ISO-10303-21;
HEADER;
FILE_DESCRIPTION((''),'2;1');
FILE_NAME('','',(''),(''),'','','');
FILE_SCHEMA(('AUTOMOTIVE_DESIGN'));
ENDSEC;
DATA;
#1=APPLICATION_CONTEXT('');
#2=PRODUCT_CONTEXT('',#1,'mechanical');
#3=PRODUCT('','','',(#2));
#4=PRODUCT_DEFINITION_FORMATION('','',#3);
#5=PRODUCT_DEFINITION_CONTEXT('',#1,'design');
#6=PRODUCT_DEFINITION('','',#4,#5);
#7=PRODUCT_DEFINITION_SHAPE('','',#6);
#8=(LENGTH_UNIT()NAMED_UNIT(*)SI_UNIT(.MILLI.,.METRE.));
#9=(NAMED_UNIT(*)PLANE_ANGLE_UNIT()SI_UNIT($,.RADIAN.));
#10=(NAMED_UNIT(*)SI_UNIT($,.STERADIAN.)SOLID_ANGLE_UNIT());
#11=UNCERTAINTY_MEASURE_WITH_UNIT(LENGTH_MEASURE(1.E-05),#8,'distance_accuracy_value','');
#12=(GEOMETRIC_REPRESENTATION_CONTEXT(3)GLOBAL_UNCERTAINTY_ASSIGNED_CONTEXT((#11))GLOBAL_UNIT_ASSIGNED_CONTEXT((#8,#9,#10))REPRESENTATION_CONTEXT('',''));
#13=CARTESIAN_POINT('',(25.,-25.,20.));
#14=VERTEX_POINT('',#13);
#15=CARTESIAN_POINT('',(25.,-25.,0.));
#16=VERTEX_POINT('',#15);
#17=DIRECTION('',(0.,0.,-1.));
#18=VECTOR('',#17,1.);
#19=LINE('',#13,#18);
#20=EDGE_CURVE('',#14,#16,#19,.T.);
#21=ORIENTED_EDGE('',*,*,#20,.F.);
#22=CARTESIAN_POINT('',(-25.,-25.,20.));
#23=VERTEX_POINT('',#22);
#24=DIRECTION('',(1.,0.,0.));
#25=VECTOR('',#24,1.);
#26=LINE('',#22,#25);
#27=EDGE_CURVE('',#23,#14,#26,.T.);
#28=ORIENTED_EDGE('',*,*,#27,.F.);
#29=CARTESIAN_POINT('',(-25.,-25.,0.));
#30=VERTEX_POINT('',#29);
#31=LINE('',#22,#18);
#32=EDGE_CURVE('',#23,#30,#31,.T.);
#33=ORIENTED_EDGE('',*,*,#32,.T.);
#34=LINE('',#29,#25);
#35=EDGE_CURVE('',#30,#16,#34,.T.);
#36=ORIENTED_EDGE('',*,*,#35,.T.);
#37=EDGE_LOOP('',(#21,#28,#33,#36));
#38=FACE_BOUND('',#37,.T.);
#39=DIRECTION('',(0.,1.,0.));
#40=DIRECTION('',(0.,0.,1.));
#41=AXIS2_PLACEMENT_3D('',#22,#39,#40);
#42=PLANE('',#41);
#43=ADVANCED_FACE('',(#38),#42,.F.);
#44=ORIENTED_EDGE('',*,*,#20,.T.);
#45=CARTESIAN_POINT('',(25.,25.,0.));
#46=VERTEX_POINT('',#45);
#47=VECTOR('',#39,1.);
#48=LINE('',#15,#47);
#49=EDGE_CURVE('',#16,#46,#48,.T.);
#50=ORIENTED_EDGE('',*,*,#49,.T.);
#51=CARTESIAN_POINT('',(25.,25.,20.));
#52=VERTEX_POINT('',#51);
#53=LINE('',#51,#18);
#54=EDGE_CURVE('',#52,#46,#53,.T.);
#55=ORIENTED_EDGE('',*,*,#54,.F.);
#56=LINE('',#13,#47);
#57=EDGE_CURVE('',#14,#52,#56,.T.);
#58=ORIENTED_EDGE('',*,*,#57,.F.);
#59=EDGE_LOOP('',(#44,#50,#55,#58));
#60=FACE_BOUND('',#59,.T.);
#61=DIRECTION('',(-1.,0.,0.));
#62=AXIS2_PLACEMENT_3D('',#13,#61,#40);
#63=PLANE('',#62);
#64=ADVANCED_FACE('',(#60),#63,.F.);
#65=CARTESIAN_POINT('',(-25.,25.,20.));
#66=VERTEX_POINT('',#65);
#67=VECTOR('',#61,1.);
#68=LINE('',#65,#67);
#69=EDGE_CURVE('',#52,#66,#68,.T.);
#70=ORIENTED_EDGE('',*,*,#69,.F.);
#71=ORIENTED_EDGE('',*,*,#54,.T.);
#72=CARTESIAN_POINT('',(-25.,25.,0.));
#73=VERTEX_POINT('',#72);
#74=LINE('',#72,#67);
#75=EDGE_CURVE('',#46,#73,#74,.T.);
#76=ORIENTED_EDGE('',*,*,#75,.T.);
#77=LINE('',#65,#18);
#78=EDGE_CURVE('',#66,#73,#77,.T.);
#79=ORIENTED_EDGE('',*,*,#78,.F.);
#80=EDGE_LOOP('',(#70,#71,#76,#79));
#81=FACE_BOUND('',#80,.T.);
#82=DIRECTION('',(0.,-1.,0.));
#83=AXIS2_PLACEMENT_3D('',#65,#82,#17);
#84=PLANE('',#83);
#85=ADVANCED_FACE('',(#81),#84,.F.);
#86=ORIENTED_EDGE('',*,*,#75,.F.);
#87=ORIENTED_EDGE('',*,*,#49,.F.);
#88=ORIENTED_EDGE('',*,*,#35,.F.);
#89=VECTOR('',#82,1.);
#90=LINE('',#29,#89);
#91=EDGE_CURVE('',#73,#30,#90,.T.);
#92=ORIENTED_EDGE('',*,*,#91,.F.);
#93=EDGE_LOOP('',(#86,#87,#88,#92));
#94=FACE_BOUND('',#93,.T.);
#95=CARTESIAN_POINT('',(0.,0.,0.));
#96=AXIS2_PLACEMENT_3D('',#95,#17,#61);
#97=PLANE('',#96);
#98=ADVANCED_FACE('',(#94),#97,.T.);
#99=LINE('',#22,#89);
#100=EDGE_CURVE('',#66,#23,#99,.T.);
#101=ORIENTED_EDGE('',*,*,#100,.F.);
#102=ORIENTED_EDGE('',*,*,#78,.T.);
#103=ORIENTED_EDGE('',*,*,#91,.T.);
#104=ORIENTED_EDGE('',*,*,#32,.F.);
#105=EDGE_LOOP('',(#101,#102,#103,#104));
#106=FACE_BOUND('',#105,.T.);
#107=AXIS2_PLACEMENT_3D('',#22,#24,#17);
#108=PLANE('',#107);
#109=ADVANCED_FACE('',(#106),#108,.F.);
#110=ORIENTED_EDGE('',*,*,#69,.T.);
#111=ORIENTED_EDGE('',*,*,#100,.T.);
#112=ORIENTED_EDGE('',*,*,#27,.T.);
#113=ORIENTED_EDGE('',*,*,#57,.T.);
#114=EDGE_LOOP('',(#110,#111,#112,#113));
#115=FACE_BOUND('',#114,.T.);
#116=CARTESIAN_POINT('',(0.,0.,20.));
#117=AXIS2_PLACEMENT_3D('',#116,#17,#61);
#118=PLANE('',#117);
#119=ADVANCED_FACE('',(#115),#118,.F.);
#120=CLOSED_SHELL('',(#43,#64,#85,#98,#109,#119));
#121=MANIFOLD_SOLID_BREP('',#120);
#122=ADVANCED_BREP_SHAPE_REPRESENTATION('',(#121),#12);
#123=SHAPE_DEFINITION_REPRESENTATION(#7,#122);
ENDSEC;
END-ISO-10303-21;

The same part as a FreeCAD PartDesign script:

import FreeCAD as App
import Part
import Sketcher
from FreeCAD import Vector

doc = App.newDocument("Part")
params = doc.addObject("Spreadsheet::Sheet", "Params")
for row, (alias, value) in enumerate([
    ("sketch1_width", "50 mm"),
    ("pad1_length", "20 mm"),
], start=1):
    params.set(f"A{row}", alias)
    params.set(f"B{row}", "=" + value)
    params.setAlias(f"B{row}", alias)

body = doc.addObject("PartDesign::Body", "Body")

sketch1 = body.newObject("Sketcher::SketchObject", "Sketch")
sketch1.AttachmentSupport = (doc.getObject("XY_Plane"), [""])
sketch1.MapMode = "FlatFace"
sketch1.addGeometry([
    Part.LineSegment(Vector(-25, 25, 0), Vector(-25, -25, 0)),
    Part.LineSegment(Vector(-25, -25, 0), Vector(25, -25, 0)),
    Part.LineSegment(Vector(25, -25, 0), Vector(25, 25, 0)),
    Part.LineSegment(Vector(25, 25, 0), Vector(-25, 25, 0)),
], False)
sketch1.addConstraint([
    Sketcher.Constraint("Coincident", 0, 2, 1, 1),
    Sketcher.Constraint("Coincident", 1, 2, 2, 1),
    Sketcher.Constraint("Coincident", 2, 2, 3, 1),
    Sketcher.Constraint("Coincident", 3, 2, 0, 1),
    Sketcher.Constraint("Vertical", 0),
    Sketcher.Constraint("Horizontal", 1),
    Sketcher.Constraint("Vertical", 2),
    Sketcher.Constraint("Horizontal", 3),
    Sketcher.Constraint("Symmetric", 0, 2, 2, 2, -1, 1),
    Sketcher.Constraint("Equal", 3, 0),
    Sketcher.Constraint("DistanceX", 1, 1, 1, 2, 50.0),
])
sketch1.setExpression("Constraints[10]", "Params.sketch1_width")
pad1 = body.newObject("PartDesign::Pad", "Pad")
pad1.Profile = sketch1
pad1.setExpression("Length", "Params.pad1_length")

doc.recompute()
